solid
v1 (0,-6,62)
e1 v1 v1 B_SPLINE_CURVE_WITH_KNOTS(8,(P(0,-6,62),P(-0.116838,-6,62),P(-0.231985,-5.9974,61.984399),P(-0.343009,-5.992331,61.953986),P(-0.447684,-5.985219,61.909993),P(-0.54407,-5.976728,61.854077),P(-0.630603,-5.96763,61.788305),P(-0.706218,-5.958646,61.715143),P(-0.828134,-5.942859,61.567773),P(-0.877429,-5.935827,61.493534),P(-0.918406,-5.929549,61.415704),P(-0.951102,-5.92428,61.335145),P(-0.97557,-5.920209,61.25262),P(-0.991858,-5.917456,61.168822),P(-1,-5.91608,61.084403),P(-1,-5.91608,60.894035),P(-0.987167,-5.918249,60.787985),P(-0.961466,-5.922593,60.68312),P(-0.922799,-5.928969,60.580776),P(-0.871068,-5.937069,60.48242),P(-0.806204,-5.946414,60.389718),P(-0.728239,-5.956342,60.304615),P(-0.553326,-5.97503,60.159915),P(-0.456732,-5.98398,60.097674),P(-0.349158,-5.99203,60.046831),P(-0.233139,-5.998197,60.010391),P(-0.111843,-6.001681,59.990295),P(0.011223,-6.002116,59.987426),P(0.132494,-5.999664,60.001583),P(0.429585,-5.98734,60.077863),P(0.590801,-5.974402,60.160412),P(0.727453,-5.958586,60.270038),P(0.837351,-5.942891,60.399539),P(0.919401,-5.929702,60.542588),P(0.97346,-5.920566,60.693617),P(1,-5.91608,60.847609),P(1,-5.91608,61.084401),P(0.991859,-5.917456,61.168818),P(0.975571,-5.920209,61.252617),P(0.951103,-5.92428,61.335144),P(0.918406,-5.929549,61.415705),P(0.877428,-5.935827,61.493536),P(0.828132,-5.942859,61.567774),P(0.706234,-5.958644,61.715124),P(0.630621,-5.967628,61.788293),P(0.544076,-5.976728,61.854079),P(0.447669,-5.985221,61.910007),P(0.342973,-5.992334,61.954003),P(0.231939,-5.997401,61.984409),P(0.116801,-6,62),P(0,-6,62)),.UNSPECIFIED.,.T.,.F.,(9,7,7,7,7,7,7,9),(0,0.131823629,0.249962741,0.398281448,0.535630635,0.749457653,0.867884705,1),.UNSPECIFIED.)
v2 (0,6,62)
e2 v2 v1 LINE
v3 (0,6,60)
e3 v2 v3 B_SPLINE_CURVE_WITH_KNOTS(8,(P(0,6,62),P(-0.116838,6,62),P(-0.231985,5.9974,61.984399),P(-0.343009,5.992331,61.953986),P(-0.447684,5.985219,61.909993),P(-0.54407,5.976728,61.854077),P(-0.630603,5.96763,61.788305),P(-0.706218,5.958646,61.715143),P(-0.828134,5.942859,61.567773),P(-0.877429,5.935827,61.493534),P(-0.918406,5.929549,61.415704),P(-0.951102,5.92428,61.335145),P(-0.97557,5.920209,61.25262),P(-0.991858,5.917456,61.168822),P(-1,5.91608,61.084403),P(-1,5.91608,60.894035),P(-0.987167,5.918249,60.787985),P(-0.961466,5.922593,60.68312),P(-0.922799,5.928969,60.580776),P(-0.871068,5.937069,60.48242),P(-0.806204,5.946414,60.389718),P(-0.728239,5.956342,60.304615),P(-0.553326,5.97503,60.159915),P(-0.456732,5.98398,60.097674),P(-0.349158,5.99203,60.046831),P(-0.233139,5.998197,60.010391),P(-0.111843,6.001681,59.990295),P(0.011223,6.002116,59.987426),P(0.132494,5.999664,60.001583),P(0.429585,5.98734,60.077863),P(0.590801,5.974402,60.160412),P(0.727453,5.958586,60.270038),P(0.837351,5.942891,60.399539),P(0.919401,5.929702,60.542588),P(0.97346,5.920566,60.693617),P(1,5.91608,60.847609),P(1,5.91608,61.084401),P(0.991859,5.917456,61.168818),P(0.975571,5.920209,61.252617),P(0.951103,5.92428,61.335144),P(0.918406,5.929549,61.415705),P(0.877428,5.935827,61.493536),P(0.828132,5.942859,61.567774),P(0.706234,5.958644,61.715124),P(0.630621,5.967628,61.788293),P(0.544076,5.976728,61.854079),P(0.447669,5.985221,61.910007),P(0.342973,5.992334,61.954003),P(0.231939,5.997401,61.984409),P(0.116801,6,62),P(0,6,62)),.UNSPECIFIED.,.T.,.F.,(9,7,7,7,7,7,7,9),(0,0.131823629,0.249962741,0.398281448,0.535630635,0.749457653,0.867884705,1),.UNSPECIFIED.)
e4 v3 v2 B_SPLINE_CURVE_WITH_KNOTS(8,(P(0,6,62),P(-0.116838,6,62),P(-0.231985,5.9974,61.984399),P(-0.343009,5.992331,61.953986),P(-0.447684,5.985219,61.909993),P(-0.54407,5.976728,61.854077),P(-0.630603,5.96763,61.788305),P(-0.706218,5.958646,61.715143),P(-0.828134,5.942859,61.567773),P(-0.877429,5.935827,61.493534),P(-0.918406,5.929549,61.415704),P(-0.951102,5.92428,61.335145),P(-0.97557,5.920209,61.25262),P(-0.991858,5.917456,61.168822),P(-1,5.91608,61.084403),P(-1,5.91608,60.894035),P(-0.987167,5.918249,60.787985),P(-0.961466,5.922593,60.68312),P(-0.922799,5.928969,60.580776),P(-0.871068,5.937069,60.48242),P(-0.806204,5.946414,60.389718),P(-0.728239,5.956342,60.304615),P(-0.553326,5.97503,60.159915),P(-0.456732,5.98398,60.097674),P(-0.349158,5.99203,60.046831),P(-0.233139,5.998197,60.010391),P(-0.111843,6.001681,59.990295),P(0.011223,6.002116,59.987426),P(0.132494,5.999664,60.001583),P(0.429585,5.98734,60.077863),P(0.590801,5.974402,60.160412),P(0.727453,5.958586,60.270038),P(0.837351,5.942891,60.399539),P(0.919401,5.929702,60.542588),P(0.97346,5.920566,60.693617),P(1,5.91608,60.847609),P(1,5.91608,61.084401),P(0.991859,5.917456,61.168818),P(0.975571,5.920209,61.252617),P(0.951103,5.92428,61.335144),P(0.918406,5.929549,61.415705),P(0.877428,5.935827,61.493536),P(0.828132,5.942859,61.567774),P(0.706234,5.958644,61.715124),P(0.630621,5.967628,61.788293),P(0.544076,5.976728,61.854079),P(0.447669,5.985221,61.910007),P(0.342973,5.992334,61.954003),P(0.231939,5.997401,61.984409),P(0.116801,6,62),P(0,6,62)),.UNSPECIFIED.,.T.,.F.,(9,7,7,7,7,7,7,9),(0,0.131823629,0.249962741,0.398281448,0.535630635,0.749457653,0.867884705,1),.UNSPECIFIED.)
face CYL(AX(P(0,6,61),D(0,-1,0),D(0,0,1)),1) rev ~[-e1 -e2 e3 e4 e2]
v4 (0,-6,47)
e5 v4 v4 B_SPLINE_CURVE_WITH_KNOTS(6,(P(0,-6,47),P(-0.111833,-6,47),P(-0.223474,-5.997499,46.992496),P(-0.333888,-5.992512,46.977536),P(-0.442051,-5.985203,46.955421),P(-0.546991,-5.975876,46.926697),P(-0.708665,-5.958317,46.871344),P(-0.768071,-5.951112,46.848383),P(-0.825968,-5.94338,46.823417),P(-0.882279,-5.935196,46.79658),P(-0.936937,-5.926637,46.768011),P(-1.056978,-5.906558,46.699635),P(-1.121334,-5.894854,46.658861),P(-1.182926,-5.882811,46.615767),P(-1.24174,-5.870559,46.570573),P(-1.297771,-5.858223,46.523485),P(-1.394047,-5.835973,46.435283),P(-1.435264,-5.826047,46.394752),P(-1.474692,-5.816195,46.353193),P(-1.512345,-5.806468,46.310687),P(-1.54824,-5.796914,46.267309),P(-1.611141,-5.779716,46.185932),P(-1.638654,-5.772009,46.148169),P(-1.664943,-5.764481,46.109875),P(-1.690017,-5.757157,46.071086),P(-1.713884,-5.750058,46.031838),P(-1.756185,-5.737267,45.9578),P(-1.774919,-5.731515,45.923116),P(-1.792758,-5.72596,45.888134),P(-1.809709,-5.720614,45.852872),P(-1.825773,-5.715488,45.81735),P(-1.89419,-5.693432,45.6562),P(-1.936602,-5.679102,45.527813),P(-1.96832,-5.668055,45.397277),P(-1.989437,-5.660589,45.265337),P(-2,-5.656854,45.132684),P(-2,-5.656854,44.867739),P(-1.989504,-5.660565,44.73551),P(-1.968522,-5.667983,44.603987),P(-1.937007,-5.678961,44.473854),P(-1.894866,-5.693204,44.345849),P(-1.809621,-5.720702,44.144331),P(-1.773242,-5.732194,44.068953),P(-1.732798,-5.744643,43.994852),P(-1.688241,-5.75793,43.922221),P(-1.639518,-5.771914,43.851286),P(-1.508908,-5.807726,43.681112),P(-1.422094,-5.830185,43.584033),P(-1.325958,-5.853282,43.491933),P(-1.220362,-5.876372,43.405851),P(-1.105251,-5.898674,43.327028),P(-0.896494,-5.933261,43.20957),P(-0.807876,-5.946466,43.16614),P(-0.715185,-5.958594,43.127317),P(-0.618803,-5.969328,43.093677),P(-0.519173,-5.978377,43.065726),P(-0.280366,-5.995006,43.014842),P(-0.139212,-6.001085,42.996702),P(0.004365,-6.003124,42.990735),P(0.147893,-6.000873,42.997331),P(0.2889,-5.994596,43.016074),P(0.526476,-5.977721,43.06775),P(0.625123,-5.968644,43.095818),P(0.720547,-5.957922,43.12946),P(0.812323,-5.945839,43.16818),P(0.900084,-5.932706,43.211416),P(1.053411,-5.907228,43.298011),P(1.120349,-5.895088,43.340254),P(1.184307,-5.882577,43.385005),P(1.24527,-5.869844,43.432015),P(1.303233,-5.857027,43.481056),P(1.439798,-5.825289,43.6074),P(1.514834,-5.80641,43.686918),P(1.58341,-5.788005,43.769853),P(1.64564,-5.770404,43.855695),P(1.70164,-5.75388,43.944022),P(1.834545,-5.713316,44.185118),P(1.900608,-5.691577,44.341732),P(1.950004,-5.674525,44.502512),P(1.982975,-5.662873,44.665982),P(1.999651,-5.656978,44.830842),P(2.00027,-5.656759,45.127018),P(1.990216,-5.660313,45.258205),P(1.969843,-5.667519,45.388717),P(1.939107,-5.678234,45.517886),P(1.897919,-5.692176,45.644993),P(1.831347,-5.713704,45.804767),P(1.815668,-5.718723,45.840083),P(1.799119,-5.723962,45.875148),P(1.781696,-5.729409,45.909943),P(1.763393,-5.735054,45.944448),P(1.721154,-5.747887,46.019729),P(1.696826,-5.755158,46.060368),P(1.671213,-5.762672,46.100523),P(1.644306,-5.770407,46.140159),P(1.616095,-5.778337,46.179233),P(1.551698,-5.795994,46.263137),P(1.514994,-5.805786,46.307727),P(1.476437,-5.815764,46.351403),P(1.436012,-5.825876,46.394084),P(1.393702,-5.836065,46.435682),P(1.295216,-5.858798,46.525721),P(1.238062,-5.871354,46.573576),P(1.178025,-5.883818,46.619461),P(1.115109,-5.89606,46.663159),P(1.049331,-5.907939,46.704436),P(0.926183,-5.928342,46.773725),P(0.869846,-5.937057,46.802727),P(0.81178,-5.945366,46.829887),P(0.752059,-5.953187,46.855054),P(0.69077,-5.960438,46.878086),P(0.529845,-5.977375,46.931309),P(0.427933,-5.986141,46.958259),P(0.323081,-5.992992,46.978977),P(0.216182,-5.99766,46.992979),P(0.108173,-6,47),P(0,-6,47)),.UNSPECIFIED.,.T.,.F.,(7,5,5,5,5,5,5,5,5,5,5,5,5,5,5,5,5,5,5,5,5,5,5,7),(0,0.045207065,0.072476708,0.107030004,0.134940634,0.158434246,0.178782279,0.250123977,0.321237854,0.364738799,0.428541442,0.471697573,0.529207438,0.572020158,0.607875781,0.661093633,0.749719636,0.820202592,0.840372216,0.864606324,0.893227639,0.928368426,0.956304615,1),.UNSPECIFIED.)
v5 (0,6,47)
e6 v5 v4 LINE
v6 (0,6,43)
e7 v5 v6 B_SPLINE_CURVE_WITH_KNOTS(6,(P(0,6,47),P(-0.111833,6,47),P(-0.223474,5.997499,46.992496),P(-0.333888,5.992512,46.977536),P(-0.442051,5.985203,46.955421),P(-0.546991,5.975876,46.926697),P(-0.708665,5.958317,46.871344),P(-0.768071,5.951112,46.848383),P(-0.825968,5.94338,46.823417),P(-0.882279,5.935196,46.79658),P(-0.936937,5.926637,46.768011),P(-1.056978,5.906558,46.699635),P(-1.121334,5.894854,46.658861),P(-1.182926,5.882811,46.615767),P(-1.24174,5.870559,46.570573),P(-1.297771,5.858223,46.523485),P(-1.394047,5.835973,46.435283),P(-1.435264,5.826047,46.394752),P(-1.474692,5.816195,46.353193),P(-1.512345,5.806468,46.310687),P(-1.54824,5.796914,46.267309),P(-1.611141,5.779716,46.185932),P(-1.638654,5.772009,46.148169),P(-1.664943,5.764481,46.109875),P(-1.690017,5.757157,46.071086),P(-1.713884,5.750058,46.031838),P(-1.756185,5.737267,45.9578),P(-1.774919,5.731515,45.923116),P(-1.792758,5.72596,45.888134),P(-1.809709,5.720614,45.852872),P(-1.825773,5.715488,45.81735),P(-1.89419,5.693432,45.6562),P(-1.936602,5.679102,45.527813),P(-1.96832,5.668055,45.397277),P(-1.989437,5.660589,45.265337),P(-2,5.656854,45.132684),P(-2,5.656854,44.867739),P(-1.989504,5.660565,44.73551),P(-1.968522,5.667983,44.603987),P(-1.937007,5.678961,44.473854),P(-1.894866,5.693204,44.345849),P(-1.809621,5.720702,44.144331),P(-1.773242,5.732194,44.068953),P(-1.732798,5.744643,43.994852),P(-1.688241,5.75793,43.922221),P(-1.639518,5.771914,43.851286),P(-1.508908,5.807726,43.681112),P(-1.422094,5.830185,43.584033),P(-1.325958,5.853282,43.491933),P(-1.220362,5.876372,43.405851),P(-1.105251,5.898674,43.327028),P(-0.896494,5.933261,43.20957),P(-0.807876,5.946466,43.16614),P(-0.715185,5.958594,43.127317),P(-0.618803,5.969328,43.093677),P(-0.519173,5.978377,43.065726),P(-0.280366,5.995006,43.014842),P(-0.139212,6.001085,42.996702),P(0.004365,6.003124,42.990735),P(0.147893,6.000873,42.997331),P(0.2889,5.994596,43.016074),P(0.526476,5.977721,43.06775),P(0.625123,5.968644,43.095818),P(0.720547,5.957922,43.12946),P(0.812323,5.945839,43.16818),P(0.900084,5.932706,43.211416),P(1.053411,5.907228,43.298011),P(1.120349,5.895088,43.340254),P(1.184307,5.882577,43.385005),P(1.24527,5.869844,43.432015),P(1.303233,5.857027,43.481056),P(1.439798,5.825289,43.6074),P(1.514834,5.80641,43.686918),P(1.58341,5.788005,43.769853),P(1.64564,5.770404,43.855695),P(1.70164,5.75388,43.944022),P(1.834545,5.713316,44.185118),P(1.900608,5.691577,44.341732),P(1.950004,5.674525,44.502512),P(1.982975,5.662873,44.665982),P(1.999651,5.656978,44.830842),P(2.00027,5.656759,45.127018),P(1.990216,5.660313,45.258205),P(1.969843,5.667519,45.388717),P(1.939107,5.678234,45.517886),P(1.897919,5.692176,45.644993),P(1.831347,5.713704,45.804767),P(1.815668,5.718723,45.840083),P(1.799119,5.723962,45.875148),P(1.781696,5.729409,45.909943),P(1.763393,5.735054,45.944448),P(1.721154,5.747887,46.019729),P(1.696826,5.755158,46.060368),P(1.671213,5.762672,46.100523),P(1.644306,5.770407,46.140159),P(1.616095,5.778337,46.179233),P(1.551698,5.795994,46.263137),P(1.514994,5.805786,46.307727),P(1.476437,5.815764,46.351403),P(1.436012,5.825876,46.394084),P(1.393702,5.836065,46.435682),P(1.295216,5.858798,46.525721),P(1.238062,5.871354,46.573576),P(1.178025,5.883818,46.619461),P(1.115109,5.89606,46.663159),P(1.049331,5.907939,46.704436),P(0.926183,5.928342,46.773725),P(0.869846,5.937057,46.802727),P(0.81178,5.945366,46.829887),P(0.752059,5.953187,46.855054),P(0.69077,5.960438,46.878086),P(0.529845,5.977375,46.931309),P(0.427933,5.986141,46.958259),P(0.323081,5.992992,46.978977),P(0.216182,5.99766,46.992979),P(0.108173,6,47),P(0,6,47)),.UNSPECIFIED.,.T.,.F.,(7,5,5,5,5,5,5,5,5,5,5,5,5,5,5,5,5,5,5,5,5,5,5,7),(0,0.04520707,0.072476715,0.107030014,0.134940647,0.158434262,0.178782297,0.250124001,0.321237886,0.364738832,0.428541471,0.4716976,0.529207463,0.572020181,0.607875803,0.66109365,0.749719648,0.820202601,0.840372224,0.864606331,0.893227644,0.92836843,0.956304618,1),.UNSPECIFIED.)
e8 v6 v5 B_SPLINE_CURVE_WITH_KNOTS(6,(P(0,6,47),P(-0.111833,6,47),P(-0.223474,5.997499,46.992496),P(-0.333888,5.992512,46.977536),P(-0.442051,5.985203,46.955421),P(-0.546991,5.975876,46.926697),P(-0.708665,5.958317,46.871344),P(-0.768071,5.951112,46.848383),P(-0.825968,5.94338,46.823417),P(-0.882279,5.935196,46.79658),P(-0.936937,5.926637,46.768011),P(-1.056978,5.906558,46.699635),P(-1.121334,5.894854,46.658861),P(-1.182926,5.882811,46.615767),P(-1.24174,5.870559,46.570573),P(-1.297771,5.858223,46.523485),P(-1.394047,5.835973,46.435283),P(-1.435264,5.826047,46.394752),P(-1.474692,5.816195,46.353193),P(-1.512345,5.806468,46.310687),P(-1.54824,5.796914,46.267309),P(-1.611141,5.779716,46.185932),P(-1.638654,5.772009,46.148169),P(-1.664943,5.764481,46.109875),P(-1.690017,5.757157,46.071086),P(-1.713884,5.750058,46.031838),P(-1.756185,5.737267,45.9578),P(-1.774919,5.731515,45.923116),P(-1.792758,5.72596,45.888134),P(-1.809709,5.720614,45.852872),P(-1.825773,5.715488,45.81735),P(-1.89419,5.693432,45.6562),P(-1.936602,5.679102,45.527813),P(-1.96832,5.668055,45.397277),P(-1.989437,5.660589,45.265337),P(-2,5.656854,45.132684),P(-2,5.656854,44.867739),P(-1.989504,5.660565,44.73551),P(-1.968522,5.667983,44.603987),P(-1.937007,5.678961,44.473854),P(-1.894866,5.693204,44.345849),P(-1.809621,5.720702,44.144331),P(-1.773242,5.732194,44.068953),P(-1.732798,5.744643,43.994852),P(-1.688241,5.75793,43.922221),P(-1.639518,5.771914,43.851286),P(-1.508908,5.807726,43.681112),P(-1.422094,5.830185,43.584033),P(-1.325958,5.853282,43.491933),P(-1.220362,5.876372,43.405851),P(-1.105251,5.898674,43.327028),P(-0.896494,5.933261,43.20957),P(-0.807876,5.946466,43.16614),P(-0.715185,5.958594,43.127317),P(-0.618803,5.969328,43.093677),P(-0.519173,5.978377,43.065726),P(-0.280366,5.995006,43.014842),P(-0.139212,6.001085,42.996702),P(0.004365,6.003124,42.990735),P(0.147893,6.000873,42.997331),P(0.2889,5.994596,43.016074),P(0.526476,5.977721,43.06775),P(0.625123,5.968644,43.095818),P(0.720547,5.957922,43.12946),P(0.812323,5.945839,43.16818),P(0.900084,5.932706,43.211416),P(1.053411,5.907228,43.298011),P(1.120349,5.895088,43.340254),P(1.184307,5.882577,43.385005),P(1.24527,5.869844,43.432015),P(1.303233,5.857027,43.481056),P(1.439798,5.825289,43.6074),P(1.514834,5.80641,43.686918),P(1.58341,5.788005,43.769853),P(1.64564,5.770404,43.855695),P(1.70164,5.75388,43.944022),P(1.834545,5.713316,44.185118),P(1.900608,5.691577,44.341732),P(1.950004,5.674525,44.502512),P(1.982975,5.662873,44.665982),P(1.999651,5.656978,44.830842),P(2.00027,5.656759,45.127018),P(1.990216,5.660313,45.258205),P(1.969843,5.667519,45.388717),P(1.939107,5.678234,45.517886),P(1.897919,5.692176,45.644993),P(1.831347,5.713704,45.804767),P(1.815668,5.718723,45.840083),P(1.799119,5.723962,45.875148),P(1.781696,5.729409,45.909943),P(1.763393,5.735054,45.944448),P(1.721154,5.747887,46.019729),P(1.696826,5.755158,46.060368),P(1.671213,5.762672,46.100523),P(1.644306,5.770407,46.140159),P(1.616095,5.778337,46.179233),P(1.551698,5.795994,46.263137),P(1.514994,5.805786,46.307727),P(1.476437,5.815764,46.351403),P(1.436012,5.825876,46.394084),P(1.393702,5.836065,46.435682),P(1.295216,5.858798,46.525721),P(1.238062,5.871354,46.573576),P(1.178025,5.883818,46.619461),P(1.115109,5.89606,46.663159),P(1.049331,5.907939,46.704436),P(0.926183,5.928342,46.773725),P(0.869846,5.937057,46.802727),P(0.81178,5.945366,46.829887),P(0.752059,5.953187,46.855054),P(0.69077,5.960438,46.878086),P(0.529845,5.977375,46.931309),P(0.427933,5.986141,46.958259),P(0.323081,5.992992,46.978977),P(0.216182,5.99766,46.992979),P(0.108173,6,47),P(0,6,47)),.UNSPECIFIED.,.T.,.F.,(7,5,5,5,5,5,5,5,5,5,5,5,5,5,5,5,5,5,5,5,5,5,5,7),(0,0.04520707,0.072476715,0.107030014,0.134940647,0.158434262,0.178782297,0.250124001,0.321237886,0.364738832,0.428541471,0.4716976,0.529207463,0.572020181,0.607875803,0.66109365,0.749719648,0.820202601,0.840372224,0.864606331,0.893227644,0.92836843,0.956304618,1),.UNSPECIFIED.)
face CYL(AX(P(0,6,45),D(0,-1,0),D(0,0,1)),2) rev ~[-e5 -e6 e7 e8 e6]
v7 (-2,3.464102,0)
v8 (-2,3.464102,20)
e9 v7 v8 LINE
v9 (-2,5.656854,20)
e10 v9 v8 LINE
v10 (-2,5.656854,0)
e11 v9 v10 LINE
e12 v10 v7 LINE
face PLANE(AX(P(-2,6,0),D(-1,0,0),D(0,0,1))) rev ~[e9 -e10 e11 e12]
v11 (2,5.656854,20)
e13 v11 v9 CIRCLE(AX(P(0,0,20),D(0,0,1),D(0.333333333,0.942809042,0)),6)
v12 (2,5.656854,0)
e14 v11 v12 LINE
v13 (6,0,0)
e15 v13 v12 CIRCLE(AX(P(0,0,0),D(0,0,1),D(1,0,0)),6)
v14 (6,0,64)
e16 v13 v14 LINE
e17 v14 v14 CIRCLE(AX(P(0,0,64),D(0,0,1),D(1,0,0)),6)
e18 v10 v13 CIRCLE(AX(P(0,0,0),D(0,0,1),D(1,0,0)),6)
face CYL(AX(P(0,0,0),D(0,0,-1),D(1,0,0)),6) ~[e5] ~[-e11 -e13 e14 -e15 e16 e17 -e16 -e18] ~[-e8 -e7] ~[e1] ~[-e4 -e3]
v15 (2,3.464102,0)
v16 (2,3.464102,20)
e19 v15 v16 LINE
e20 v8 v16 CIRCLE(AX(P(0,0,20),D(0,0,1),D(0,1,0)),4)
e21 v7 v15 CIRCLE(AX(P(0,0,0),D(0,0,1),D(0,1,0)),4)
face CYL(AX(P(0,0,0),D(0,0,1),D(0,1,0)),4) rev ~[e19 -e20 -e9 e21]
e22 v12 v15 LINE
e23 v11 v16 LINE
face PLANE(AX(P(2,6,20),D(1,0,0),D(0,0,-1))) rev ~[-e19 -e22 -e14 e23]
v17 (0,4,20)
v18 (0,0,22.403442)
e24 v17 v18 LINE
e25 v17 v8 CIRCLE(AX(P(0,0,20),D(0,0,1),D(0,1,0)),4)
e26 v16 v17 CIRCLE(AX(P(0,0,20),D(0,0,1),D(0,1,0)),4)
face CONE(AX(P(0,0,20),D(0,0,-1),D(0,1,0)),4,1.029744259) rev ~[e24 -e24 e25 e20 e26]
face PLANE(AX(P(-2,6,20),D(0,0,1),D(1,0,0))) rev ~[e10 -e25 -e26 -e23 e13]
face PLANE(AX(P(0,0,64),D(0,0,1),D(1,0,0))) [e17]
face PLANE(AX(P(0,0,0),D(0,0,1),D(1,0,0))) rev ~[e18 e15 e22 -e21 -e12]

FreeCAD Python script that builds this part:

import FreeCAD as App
import Part
import Sketcher
Q = App.Units.Quantity

doc = App.newDocument("Part")
body = doc.addObject("PartDesign::Body", "Body")

# Sketch on XY plane
sketch1 = body.newObject("Sketcher::SketchObject", "Sketch")
sketch1.AttachmentSupport = (doc.getObject("XY_Plane"), [""])
sketch1.MapMode = "FlatFace"
sketch1.addGeometry(Part.Circle(App.Vector(0, 0, 0), App.Vector(0, 0, 1), 6), False)
sketch1.addConstraint(Sketcher.Constraint("Coincident", 0, 3, -1, 1))
sketch1.addConstraint(Sketcher.Constraint("Diameter", 0, Q("12 mm")))
pad1 = body.newObject("PartDesign::Pad", "Pad")
pad1.Profile = sketch1
pad1.Length = 64

# Sketch on XZ plane
sketch2 = body.newObject("Sketcher::SketchObject", "Sketch001")
sketch2.AttachmentSupport = (doc.getObject("XZ_Plane"), [""])
sketch2.MapMode = "FlatFace"
sketch2.AttachmentOffset = App.Placement(App.Vector(0, 0, -6), App.Rotation())
sketch2.addGeometry(Part.LineSegment(App.Vector(-2, 20, 0), App.Vector(2, 20, 0)), False)
sketch2.addGeometry(Part.LineSegment(App.Vector(2, 20, 0), App.Vector(2, 0, 0)), False)
sketch2.addGeometry(Part.LineSegment(App.Vector(2, 0, 0), App.Vector(-2, 0, 0)), False)
sketch2.addGeometry(Part.LineSegment(App.Vector(-2, 0, 0), App.Vector(-2, 20, 0)), False)
sketch2.addConstraint(Sketcher.Constraint("Coincident", 0, 2, 1, 1))
sketch2.addConstraint(Sketcher.Constraint("Coincident", 1, 2, 2, 1))
sketch2.addConstraint(Sketcher.Constraint("Coincident", 2, 2, 3, 1))
sketch2.addConstraint(Sketcher.Constraint("Coincident", 3, 2, 0, 1))
sketch2.addConstraint(Sketcher.Constraint("Horizontal", 0))
sketch2.addConstraint(Sketcher.Constraint("Vertical", 1))
sketch2.addConstraint(Sketcher.Constraint("Horizontal", 2))
sketch2.addConstraint(Sketcher.Constraint("Vertical", 3))
sketch2.addConstraint(Sketcher.Constraint("Symmetric", 1, 2, 2, 2, -1, 1))
sketch2.addConstraint(Sketcher.Constraint("DistanceX", 0, 1, 0, 2, Q("4 mm")))
sketch2.addConstraint(Sketcher.Constraint("DistanceY", 1, 2, 1, 1, Q("20 mm")))
pocket1 = body.newObject("PartDesign::Pocket", "Pocket")
pocket1.Profile = sketch2
pocket1.Length = 6
pocket1.Reversed = True

# Sketch on XY plane
sketch3 = body.newObject("Sketcher::SketchObject", "Sketch002")
sketch3.AttachmentSupport = (doc.getObject("XY_Plane"), [""])
sketch3.MapMode = "FlatFace"
sketch3.addGeometry(Part.Circle(App.Vector(0, 0, 0), App.Vector(0, 0, 1), 4), False)
sketch3.addConstraint(Sketcher.Constraint("Coincident", 0, 3, -1, 1))
sketch3.addConstraint(Sketcher.Constraint("Diameter", 0, Q("8 mm")))
doc.recompute()
hole = body.newObject("PartDesign::Hole", "Hole")
hole.Profile = sketch3
hole.ThreadType = "None"
hole.Diameter = 8
hole.DepthType = "Dimension"
hole.Depth = 20
hole.DrillPoint = "Angled"
hole.DrillPointAngle = 118
hole.Reversed = True

# Sketch on XZ plane
sketch4 = body.newObject("Sketcher::SketchObject", "Sketch003")
sketch4.AttachmentSupport = (doc.getObject("XZ_Plane"), [""])
sketch4.MapMode = "FlatFace"
sketch4.AttachmentOffset = App.Placement(App.Vector(0, 0, -6), App.Rotation())
sketch4.addGeometry(Part.Circle(App.Vector(0, 45, 0), App.Vector(0, 0, 1), 2), False)
sketch4.addConstraint(Sketcher.Constraint("PointOnObject", 0, 3, -2))
sketch4.addConstraint(Sketcher.Constraint("Diameter", 0, Q("4 mm")))
sketch4.addConstraint(Sketcher.Constraint("DistanceY", -1, 1, 0, 3, Q("45 mm")))
doc.recompute()
hole2 = body.newObject("PartDesign::Hole", "Hole001")
hole2.Profile = sketch4
hole2.ThreadType = "None"
hole2.Diameter = 4
hole2.DepthType = "ThroughAll"
hole2.Reversed = True

# Sketch on XZ plane
sketch5 = body.newObject("Sketcher::SketchObject", "Sketch004")
sketch5.AttachmentSupport = (doc.getObject("XZ_Plane"), [""])
sketch5.MapMode = "FlatFace"
sketch5.AttachmentOffset = App.Placement(App.Vector(0, 0, -6), App.Rotation())
sketch5.addGeometry(Part.Circle(App.Vector(0, 61, 0), App.Vector(0, 0, 1), 1), False)
sketch5.addConstraint(Sketcher.Constraint("PointOnObject", 0, 3, -2))
sketch5.addConstraint(Sketcher.Constraint("Diameter", 0, Q("2 mm")))
sketch5.addConstraint(Sketcher.Constraint("DistanceY", -1, 1, 0, 3, Q("61 mm")))
doc.recompute()
hole3 = body.newObject("PartDesign::Hole", "Hole002")
hole3.Profile = sketch5
hole3.ThreadType = "None"
hole3.Diameter = 2
hole3.DepthType = "ThroughAll"
hole3.Reversed = True

doc.recompute()
